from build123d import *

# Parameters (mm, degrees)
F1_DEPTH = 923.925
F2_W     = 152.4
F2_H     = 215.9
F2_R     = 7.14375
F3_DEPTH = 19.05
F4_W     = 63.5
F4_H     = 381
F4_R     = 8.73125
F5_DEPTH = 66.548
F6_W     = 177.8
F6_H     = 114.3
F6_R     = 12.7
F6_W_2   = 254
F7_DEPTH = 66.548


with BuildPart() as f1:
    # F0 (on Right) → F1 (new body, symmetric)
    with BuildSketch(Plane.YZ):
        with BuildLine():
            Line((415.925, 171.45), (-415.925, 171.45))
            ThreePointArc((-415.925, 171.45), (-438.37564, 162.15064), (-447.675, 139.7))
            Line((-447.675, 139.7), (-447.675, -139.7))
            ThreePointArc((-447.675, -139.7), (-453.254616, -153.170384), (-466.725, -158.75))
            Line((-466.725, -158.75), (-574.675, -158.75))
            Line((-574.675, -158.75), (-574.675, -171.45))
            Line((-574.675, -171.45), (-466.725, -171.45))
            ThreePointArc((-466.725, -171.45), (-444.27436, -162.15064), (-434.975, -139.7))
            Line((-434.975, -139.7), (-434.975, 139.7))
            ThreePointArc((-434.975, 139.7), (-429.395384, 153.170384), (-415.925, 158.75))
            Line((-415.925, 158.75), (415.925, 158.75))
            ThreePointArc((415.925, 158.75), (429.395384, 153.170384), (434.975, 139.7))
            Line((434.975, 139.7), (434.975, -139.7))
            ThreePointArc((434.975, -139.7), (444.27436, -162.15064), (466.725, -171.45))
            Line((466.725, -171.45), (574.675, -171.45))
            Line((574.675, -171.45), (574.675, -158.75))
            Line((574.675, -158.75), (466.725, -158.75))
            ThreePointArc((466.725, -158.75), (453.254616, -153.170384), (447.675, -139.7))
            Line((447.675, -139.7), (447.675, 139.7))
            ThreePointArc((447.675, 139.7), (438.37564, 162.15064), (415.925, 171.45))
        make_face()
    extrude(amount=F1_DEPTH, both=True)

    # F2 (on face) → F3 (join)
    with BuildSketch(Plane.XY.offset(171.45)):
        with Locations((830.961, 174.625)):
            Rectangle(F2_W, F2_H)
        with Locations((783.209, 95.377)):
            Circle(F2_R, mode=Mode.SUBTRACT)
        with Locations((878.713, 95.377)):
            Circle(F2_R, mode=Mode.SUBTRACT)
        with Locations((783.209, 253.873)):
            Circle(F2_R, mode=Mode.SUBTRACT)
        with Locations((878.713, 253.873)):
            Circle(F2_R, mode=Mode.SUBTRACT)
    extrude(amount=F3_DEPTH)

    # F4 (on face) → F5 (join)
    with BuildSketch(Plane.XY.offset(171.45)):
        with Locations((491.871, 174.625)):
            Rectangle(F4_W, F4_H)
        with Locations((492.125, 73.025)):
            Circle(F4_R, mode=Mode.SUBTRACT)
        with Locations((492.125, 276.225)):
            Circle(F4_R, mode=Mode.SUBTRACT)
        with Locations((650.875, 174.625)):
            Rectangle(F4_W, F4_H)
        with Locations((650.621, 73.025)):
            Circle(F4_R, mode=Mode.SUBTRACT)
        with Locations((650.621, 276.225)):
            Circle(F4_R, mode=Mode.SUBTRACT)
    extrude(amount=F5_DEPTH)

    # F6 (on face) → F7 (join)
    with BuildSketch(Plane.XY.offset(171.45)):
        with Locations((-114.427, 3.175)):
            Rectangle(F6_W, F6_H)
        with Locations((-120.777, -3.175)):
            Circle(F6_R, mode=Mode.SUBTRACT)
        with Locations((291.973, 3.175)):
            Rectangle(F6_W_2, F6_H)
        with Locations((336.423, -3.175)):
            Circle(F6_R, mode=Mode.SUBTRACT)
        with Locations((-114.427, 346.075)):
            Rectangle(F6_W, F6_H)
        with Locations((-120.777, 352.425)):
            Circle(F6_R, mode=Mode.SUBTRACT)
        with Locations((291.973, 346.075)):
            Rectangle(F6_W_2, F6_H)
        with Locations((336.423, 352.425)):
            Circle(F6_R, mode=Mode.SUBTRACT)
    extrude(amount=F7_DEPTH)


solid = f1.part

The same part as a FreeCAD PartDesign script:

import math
import FreeCAD as App
import Part
import Sketcher
Q = App.Units.Quantity

doc = App.newDocument("Part")
body = doc.addObject("PartDesign::Body", "Body")

# Sketch on YZ plane
sketch1 = doc.addObject("Sketcher::SketchObject", "Sketch")
body.addObject(sketch1)
sketch1.AttachmentSupport = (doc.YZ_Plane, [""])
sketch1.MapMode = "FlatFace"
sketch1.addGeometry(Part.LineSegment(App.Vector(415.925, 171.45, 0), App.Vector(-415.925, 171.45, 0)), False)
sketch1.addGeometry(Part.ArcOfCircle(Part.Circle(App.Vector(-415.924999, 139.699999, 0), App.Vector(0, 0, 1), 31.750001), math.radians(90.000002), math.radians(179.999998)), False)
sketch1.addGeometry(Part.LineSegment(App.Vector(-447.675, 139.7, 0), App.Vector(-447.675, -139.7, 0)), False)
sketch1.addGeometry(Part.ArcOfCircle(Part.Circle(App.Vector(-466.725001, -139.699999, 0), App.Vector(0, 0, 1), 19.050001), math.radians(-89.999998), math.radians(-0.000002)), False)
sketch1.addGeometry(Part.LineSegment(App.Vector(-466.725, -158.75, 0), App.Vector(-574.675, -158.75, 0)), False)
sketch1.addGeometry(Part.LineSegment(App.Vector(-574.675, -158.75, 0), App.Vector(-574.675, -171.45, 0)), False)
sketch1.addGeometry(Part.LineSegment(App.Vector(-574.675, -171.45, 0), App.Vector(-466.725, -171.45, 0)), False)
sketch1.addGeometry(Part.ArcOfCircle(Part.Circle(App.Vector(-466.725001, -139.699999, 0), App.Vector(0, 0, 1), 31.750001), math.radians(-89.999998), math.radians(-0.000002)), False)
sketch1.addGeometry(Part.LineSegment(App.Vector(-434.975, -139.7, 0), App.Vector(-434.975, 139.7, 0)), False)
sketch1.addGeometry(Part.ArcOfCircle(Part.Circle(App.Vector(-415.924999, 139.699999, 0), App.Vector(0, 0, 1), 19.050001), math.radians(90.000002), math.radians(179.999998)), False)
sketch1.addGeometry(Part.LineSegment(App.Vector(-415.925, 158.75, 0), App.Vector(415.925, 158.75, 0)), False)
sketch1.addGeometry(Part.ArcOfCircle(Part.Circle(App.Vector(415.924999, 139.699999, 0), App.Vector(0, 0, 1), 19.050001), math.radians(0.000002), math.radians(89.999998)), False)
sketch1.addGeometry(Part.LineSegment(App.Vector(434.975, 139.7, 0), App.Vector(434.975, -139.7, 0)), False)
sketch1.addGeometry(Part.ArcOfCircle(Part.Circle(App.Vector(466.725001, -139.699999, 0), App.Vector(0, 0, 1), 31.750001), math.radians(-179.999998), math.radians(-90.000002)), False)
sketch1.addGeometry(Part.LineSegment(App.Vector(466.725, -171.45, 0), App.Vector(574.675, -171.45, 0)), False)
sketch1.addGeometry(Part.LineSegment(App.Vector(574.675, -171.45, 0), App.Vector(574.675, -158.75, 0)), False)
sketch1.addGeometry(Part.LineSegment(App.Vector(574.675, -158.75, 0), App.Vector(466.725, -158.75, 0)), False)
sketch1.addGeometry(Part.ArcOfCircle(Part.Circle(App.Vector(466.725001, -139.699999, 0), App.Vector(0, 0, 1), 19.050001), math.radians(-179.999998), math.radians(-90.000002)), False)
sketch1.addGeometry(Part.LineSegment(App.Vector(447.675, -139.7, 0), App.Vector(447.675, 139.7, 0)), False)
sketch1.addGeometry(Part.ArcOfCircle(Part.Circle(App.Vector(415.924999, 139.699999, 0), App.Vector(0, 0, 1), 31.750001), math.radians(0.000002), math.radians(89.999998)), False)
sketch1.addConstraint(Sketcher.Constraint("Tangent", 0, 2, 1, 1))
sketch1.addConstraint(Sketcher.Constraint("Tangent", 1, 2, 2, 1))
sketch1.addConstraint(Sketcher.Constraint("Tangent", 2, 2, 3, 2))
sketch1.addConstraint(Sketcher.Constraint("Tangent", 3, 1, 4, 1))
sketch1.addConstraint(Sketcher.Constraint("Coincident", 4, 2, 5, 1))
sketch1.addConstraint(Sketcher.Constraint("Coincident", 5, 2, 6, 1))
sketch1.addConstraint(Sketcher.Constraint("Tangent", 6, 2, 7, 1))
sketch1.addConstraint(Sketcher.Constraint("Tangent", 7, 2, 8, 1))
sketch1.addConstraint(Sketcher.Constraint("Tangent", 8, 2, 9, 2))
sketch1.addConstraint(Sketcher.Constraint("Tangent", 9, 1, 10, 1))
sketch1.addConstraint(Sketcher.Constraint("Tangent", 10, 2, 11, 2))
sketch1.addConstraint(Sketcher.Constraint("Tangent", 11, 1, 12, 1))
sketch1.addConstraint(Sketcher.Constraint("Tangent", 12, 2, 13, 1))
sketch1.addConstraint(Sketcher.Constraint("Tangent", 13, 2, 14, 1))
sketch1.addConstraint(Sketcher.Constraint("Coincident", 14, 2, 15, 1))
sketch1.addConstraint(Sketcher.Constraint("Coincident", 15, 2, 16, 1))
sketch1.addConstraint(Sketcher.Constraint("Tangent", 16, 2, 17, 2))
sketch1.addConstraint(Sketcher.Constraint("Tangent", 17, 1, 18, 1))
sketch1.addConstraint(Sketcher.Constraint("Tangent", 18, 2, 19, 1))
sketch1.addConstraint(Sketcher.Constraint("Tangent", 19, 2, 0, 1))
sketch1.addConstraint(Sketcher.Constraint("Horizontal", 0))
sketch1.addConstraint(Sketcher.Constraint("Vertical", 2))
sketch1.addConstraint(Sketcher.Constraint("Horizontal", 4))
sketch1.addConstraint(Sketcher.Constraint("Vertical", 5))
sketch1.addConstraint(Sketcher.Constraint("Horizontal", 6))
sketch1.addConstraint(Sketcher.Constraint("Vertical", 8))
sketch1.addConstraint(Sketcher.Constraint("Horizontal", 10))
sketch1.addConstraint(Sketcher.Constraint("Vertical", 12))
sketch1.addConstraint(Sketcher.Constraint("Horizontal", 14))
sketch1.addConstraint(Sketcher.Constraint("Vertical", 15))
sketch1.addConstraint(Sketcher.Constraint("Horizontal", 16))
sketch1.addConstraint(Sketcher.Constraint("Vertical", 18))
sketch1.addConstraint(Sketcher.Constraint("Coincident", 7, 3, 3, 3))
sketch1.addConstraint(Sketcher.Constraint("Coincident", 9, 3, 1, 3))
sketch1.addConstraint(Sketcher.Constraint("Coincident", 17, 3, 13, 3))
sketch1.addConstraint(Sketcher.Constraint("Coincident", 19, 3, 11, 3))
sketch1.addConstraint(Sketcher.Constraint("Equal", 1, 7))
sketch1.addConstraint(Sketcher.Constraint("Equal", 9, 11))
sketch1.addConstraint(Sketcher.Constraint("Equal", 7, 13))
sketch1.addConstraint(Sketcher.Constraint("Symmetric", 7, 2, 11, 1, -1, 1))
sketch1.addConstraint(Sketcher.Constraint("Symmetric", 5, 2, 14, 2, -2))
sketch1.addConstraint(Sketcher.Constraint("DistanceY", 2, 2, 2, 1, Q("11 in")))
sketch1.addConstraint(Sketcher.Constraint("Radius", 1, Q("1.25 in")))
sketch1.addConstraint(Sketcher.Constraint("Radius", 3, Q("0.75 in")))
sketch1.addConstraint(Sketcher.Constraint("DistanceX", 4, 2, 2, 2, Q("5 in")))
sketch1.addConstraint(Sketcher.Constraint("DistanceX", 0, 2, 0, 1, Q("32.75 in")))
pad1 = doc.addObject("PartDesign::Pad", "Pad")
body.addObject(pad1)
pad1.Profile = sketch1
pad1.Length = Q("72.75 in")
pad1.Midplane = True

# Sketch on XY plane
sketch2 = doc.addObject("Sketcher::SketchObject", "Sketch001")
body.addObject(sketch2)
sketch2.AttachmentSupport = (doc.XY_Plane, [""])
sketch2.MapMode = "FlatFace"
sketch2.AttachmentOffset = App.Placement(App.Vector(0, 0, 6.75 * 25.4), App.Rotation())
sketch2.addGeometry(Part.LineSegment(App.Vector(754.761, 282.575, 0), App.Vector(754.761, 66.675, 0)), False)
sketch2.addGeometry(Part.LineSegment(App.Vector(754.761, 66.675, 0), App.Vector(907.161, 66.675, 0)), False)
sketch2.addGeometry(Part.LineSegment(App.Vector(907.161, 66.675, 0), App.Vector(907.161, 282.575, 0)), False)
sketch2.addGeometry(Part.LineSegment(App.Vector(907.161, 282.575, 0), App.Vector(754.761, 282.575, 0)), False)
sketch2.addGeometry(Part.Circle(App.Vector(783.209, 95.377, 0), App.Vector(0, 0, 1), 7.14375), False)
sketch2.addGeometry(Part.Circle(App.Vector(878.713, 95.377, 0), App.Vector(0, 0, 1), 7.14375), False)
sketch2.addGeometry(Part.Circle(App.Vector(783.209, 253.873, 0), App.Vector(0, 0, 1), 7.14375), False)
sketch2.addGeometry(Part.Circle(App.Vector(878.713, 253.873, 0), App.Vector(0, 0, 1), 7.14375), False)
sketch2.addConstraint(Sketcher.Constraint("Coincident", 0, 2, 1, 1))
sketch2.addConstraint(Sketcher.Constraint("Coincident", 1, 2, 2, 1))
sketch2.addConstraint(Sketcher.Constraint("Coincident", 2, 2, 3, 1))
sketch2.addConstraint(Sketcher.Constraint("Coincident", 3, 2, 0, 1))
sketch2.addConstraint(Sketcher.Constraint("Vertical", 0))
sketch2.addConstraint(Sketcher.Constraint("Horizontal", 1))
sketch2.addConstraint(Sketcher.Constraint("Vertical", 2))
sketch2.addConstraint(Sketcher.Constraint("Horizontal", 3))
sketch2.addConstraint(Sketcher.Constraint("Equal", 4, 5))
sketch2.addConstraint(Sketcher.Constraint("Equal", 5, 6))
sketch2.addConstraint(Sketcher.Constraint("Equal", 6, 7))
sketch2.addConstraint(Sketcher.Constraint("Horizontal", 4, 3, 5, 3))
sketch2.addConstraint(Sketcher.Constraint("Horizontal", 6, 3, 7, 3))
sketch2.addConstraint(Sketcher.Constraint("Vertical", 4, 3, 6, 3))
sketch2.addConstraint(Sketcher.Constraint("Vertical", 5, 3, 7, 3))
sketch2.addConstraint(Sketcher.Constraint("DistanceX", 1, 1, 1, 2, Q("6 in")))
sketch2.addConstraint(Sketcher.Constraint("Diameter", 4, Q("0.5625 in")))
sketch2.addConstraint(Sketcher.Constraint("DistanceY", 0, 2, 0, 1, Q("8.5 in")))
sketch2.addConstraint(Sketcher.Constraint("DistanceX", 4, 3, 5, 3, Q("3.76 in")))
sketch2.addConstraint(Sketcher.Constraint("DistanceY", 4, 3, 6, 3, Q("6.24 in")))
sketch2.addConstraint(Sketcher.Constraint("DistanceX", 0, 2, 4, 3, Q("1.12 in")))
sketch2.addConstraint(Sketcher.Constraint("DistanceY", 0, 2, 4, 3, Q("1.13 in")))
sketch2.addConstraint(Sketcher.Constraint("DistanceX", -1, 1, 4, 3, Q("30.835 in")))
sketch2.addConstraint(Sketcher.Constraint("DistanceY", -1, 1, 4, 3, Q("3.755 in")))
pad2 = doc.addObject("PartDesign::Pad", "Pad001")
body.addObject(pad2)
pad2.Profile = sketch2
pad2.Length = Q("0.75 in")

# Sketch on XY plane
sketch3 = doc.addObject("Sketcher::SketchObject", "Sketch002")
body.addObject(sketch3)
sketch3.AttachmentSupport = (doc.XY_Plane, [""])
sketch3.MapMode = "FlatFace"
sketch3.AttachmentOffset = App.Placement(App.Vector(0, 0, 6.75 * 25.4), App.Rotation())
sketch3.addGeometry(Part.LineSegment(App.Vector(460.121, 365.125, 0), App.Vector(460.121, -15.875, 0)), False)
sketch3.addGeometry(Part.LineSegment(App.Vector(460.121, -15.875, 0), App.Vector(523.621, -15.875, 0)), False)
sketch3.addGeometry(Part.LineSegment(App.Vector(523.621, -15.875, 0), App.Vector(523.621, 365.125, 0)), False)
sketch3.addGeometry(Part.LineSegment(App.Vector(523.621, 365.125, 0), App.Vector(460.121, 365.125, 0)), False)
sketch3.addGeometry(Part.Circle(App.Vector(492.125, 73.025, 0), App.Vector(0, 0, 1), 8.73125), False)
sketch3.addGeometry(Part.Circle(App.Vector(492.125, 276.225, 0), App.Vector(0, 0, 1), 8.73125), False)
sketch3.addGeometry(Part.LineSegment(App.Vector(619.125, 365.125, 0), App.Vector(619.125, -15.875, 0)), False)
sketch3.addGeometry(Part.LineSegment(App.Vector(619.125, -15.875, 0), App.Vector(682.625, -15.875, 0)), False)
sketch3.addGeometry(Part.LineSegment(App.Vector(682.625, -15.875, 0), App.Vector(682.625, 365.125, 0)), False)
sketch3.addGeometry(Part.LineSegment(App.Vector(682.625, 365.125, 0), App.Vector(619.125, 365.125, 0)), False)
sketch3.addGeometry(Part.Circle(App.Vector(650.621, 73.025, 0), App.Vector(0, 0, 1), 8.73125), False)
sketch3.addGeometry(Part.Circle(App.Vector(650.621, 276.225, 0), App.Vector(0, 0, 1), 8.73125), False)
sketch3.addConstraint(Sketcher.Constraint("Coincident", 0, 2, 1, 1))
sketch3.addConstraint(Sketcher.Constraint("Coincident", 1, 2, 2, 1))
sketch3.addConstraint(Sketcher.Constraint("Coincident", 2, 2, 3, 1))
sketch3.addConstraint(Sketcher.Constraint("Coincident", 3, 2, 0, 1))
sketch3.addConstraint(Sketcher.Constraint("Coincident", 6, 2, 7, 1))
sketch3.addConstraint(Sketcher.Constraint("Coincident", 7, 2, 8, 1))
sketch3.addConstraint(Sketcher.Constraint("Coincident", 8, 2, 9, 1))
sketch3.addConstraint(Sketcher.Constraint("Coincident", 9, 2, 6, 1))
sketch3.addConstraint(Sketcher.Constraint("Vertical", 0))
sketch3.addConstraint(Sketcher.Constraint("Horizontal", 1))
sketch3.addConstraint(Sketcher.Constraint("Vertical", 2))
sketch3.addConstraint(Sketcher.Constraint("Horizontal", 3))
sketch3.addConstraint(Sketcher.Constraint("Vertical", 6))
sketch3.addConstraint(Sketcher.Constraint("Horizontal", 7))
sketch3.addConstraint(Sketcher.Constraint("Vertical", 8))
sketch3.addConstraint(Sketcher.Constraint("Horizontal", 9))
sketch3.addConstraint(Sketcher.Constraint("Equal", 4, 5))
sketch3.addConstraint(Sketcher.Constraint("Equal", 5, 10))
sketch3.addConstraint(Sketcher.Constraint("Equal", 10, 11))
sketch3.addConstraint(Sketcher.Constraint("Horizontal", 4, 3, 10, 3))
sketch3.addConstraint(Sketcher.Constraint("Horizontal", 5, 3, 11, 3))
sketch3.addConstraint(Sketcher.Constraint("Horizontal", 1, 2, 6, 2))
sketch3.addConstraint(Sketcher.Constraint("Horizontal", 3, 2, 8, 2))
sketch3.addConstraint(Sketcher.Constraint("Vertical", 4, 3, 5, 3))
sketch3.addConstraint(Sketcher.Constraint("Vertical", 10, 3, 11, 3))
sketch3.addConstraint(Sketcher.Constraint("Equal", 3, 7))
sketch3.addConstraint(Sketcher.Constraint("DistanceY", 0, 2, 0, 1, Q("15 in")))
sketch3.addConstraint(Sketcher.Constraint("Diameter", 4, Q("0.6875 in")))
sketch3.addConstraint(Sketcher.Constraint("DistanceX", 1, 1, 1, 2, Q("2.5 in")))
sketch3.addConstraint(Sketcher.Constraint("DistanceY", 4, 3, 5, 3, Q("8 in")))
sketch3.addConstraint(Sketcher.Constraint("DistanceX", 1, 2, 10, 3, Q("5 in")))
sketch3.addConstraint(Sketcher.Constraint("DistanceX", 4, 3, 6, 2, Q("5 in")))
sketch3.addConstraint(Sketcher.Constraint("DistanceY", 0, 2, 4, 3, Q("3.5 in")))
sketch3.addConstraint(Sketcher.Constraint("DistanceX", 4, 3, 10, 3, Q("6.24 in")))
sketch3.addConstraint(Sketcher.Constraint("DistanceX", -1, 1, 4, 3, Q("19.375 in")))
sketch3.addConstraint(Sketcher.Constraint("DistanceY", -1, 1, 4, 3, Q("2.875 in")))
pad3 = doc.addObject("PartDesign::Pad", "Pad002")
body.addObject(pad3)
pad3.Profile = sketch3
pad3.Length = Q("2.62 in")

# Sketch on XY plane
sketch4 = doc.addObject("Sketcher::SketchObject", "Sketch003")
body.addObject(sketch4)
sketch4.AttachmentSupport = (doc.XY_Plane, [""])
sketch4.MapMode = "FlatFace"
sketch4.AttachmentOffset = App.Placement(App.Vector(0, 0, 6.75 * 25.4), App.Rotation())
sketch4.addGeometry(Part.LineSegment(App.Vector(-203.327, 60.325, 0), App.Vector(-203.327, -53.975, 0)), False)
sketch4.addGeometry(Part.LineSegment(App.Vector(-203.327, -53.975, 0), App.Vector(-25.527, -53.975, 0)), False)
sketch4.addGeometry(Part.LineSegment(App.Vector(-25.527, -53.975, 0), App.Vector(-25.527, 60.325, 0)), False)
sketch4.addGeometry(Part.LineSegment(App.Vector(-25.527, 60.325, 0), App.Vector(-203.327, 60.325, 0)), False)
sketch4.addGeometry(Part.Circle(App.Vector(-120.777, -3.175, 0), App.Vector(0, 0, 1), 12.7), False)
sketch4.addGeometry(Part.LineSegment(App.Vector(164.973, 60.325, 0), App.Vector(164.973, -53.975, 0)), False)
sketch4.addGeometry(Part.LineSegment(App.Vector(164.973, -53.975, 0), App.Vector(418.973, -53.975, 0)), False)
sketch4.addGeometry(Part.LineSegment(App.Vector(418.973, -53.975, 0), App.Vector(418.973, 60.325, 0)), False)
sketch4.addGeometry(Part.LineSegment(App.Vector(418.973, 60.325, 0), App.Vector(164.973, 60.325, 0)), False)
sketch4.addGeometry(Part.Circle(App.Vector(336.423, -3.175, 0), App.Vector(0, 0, 1), 12.7), False)
sketch4.addGeometry(Part.LineSegment(App.Vector(-203.327, 403.225, 0), App.Vector(-203.327, 288.925, 0)), False)
sketch4.addGeometry(Part.LineSegment(App.Vector(-203.327, 288.925, 0), App.Vector(-25.527, 288.925, 0)), False)
sketch4.addGeometry(Part.LineSegment(App.Vector(-25.527, 288.925, 0), App.Vector(-25.527, 403.225, 0)), False)
sketch4.addGeometry(Part.LineSegment(App.Vector(-25.527, 403.225, 0), App.Vector(-203.327, 403.225, 0)), False)
sketch4.addGeometry(Part.Circle(App.Vector(-120.777, 352.425, 0), App.Vector(0, 0, 1), 12.7), False)
sketch4.addGeometry(Part.LineSegment(App.Vector(164.973, 403.225, 0), App.Vector(164.973, 288.925, 0)), False)
sketch4.addGeometry(Part.LineSegment(App.Vector(164.973, 288.925, 0), App.Vector(418.973, 288.925, 0)), False)
sketch4.addGeometry(Part.LineSegment(App.Vector(418.973, 288.925, 0), App.Vector(418.973, 403.225, 0)), False)
sketch4.addGeometry(Part.LineSegment(App.Vector(418.973, 403.225, 0), App.Vector(164.973, 403.225, 0)), False)
sketch4.addGeometry(Part.Circle(App.Vector(336.423, 352.425, 0), App.Vector(0, 0, 1), 12.7), False)
sketch4.addConstraint(Sketcher.Constraint("Coincident", 0, 2, 1, 1))
sketch4.addConstraint(Sketcher.Constraint("Coincident", 1, 2, 2, 1))
sketch4.addConstraint(Sketcher.Constraint("Coincident", 2, 2, 3, 1))
sketch4.addConstraint(Sketcher.Constraint("Coincident", 3, 2, 0, 1))
sketch4.addConstraint(Sketcher.Constraint("Coincident", 5, 2, 6, 1))
sketch4.addConstraint(Sketcher.Constraint("Coincident", 6, 2, 7, 1))
sketch4.addConstraint(Sketcher.Constraint("Coincident", 7, 2, 8, 1))
sketch4.addConstraint(Sketcher.Constraint("Coincident", 8, 2, 5, 1))
sketch4.addConstraint(Sketcher.Constraint("Coincident", 10, 2, 11, 1))
sketch4.addConstraint(Sketcher.Constraint("Coincident", 11, 2, 12, 1))
sketch4.addConstraint(Sketcher.Constraint("Coincident", 12, 2, 13, 1))
sketch4.addConstraint(Sketcher.Constraint("Coincident", 13, 2, 10, 1))
sketch4.addConstraint(Sketcher.Constraint("Coincident", 15, 2, 16, 1))
sketch4.addConstraint(Sketcher.Constraint("Coincident", 16, 2, 17, 1))
sketch4.addConstraint(Sketcher.Constraint("Coincident", 17, 2, 18, 1))
sketch4.addConstraint(Sketcher.Constraint("Coincident", 18, 2, 15, 1))
sketch4.addConstraint(Sketcher.Constraint("Vertical", 0))
sketch4.addConstraint(Sketcher.Constraint("Horizontal", 1))
sketch4.addConstraint(Sketcher.Constraint("Vertical", 2))
sketch4.addConstraint(Sketcher.Constraint("Horizontal", 3))
sketch4.addConstraint(Sketcher.Constraint("Vertical", 5))
sketch4.addConstraint(Sketcher.Constraint("Horizontal", 6))
sketch4.addConstraint(Sketcher.Constraint("Vertical", 7))
sketch4.addConstraint(Sketcher.Constraint("Horizontal", 8))
sketch4.addConstraint(Sketcher.Constraint("Vertical", 10))
sketch4.addConstraint(Sketcher.Constraint("Horizontal", 11))
sketch4.addConstraint(Sketcher.Constraint("Vertical", 12))
sketch4.addConstraint(Sketcher.Constraint("Horizontal", 13))
sketch4.addConstraint(Sketcher.Constraint("Vertical", 15))
sketch4.addConstraint(Sketcher.Constraint("Horizontal", 16))
sketch4.addConstraint(Sketcher.Constraint("Vertical", 17))
sketch4.addConstraint(Sketcher.Constraint("Horizontal", 18))
sketch4.addConstraint(Sketcher.Constraint("Equal", 4, 9))
sketch4.addConstraint(Sketcher.Constraint("Equal", 9, 14))
sketch4.addConstraint(Sketcher.Constraint("Equal", 14, 19))
sketch4.addConstraint(Sketcher.Constraint("Horizontal", 4, 3, 9, 3))
sketch4.addConstraint(Sketcher.Constraint("Horizontal", 14, 3, 19, 3))
sketch4.addConstraint(Sketcher.Constraint("Horizontal", 1, 2, 5, 2))
sketch4.addConstraint(Sketcher.Constraint("Horizontal", 3, 2, 7, 2))
sketch4.addConstraint(Sketcher.Constraint("Horizontal", 11, 2, 15, 2))
sketch4.addConstraint(Sketcher.Constraint("Horizontal", 13, 2, 17, 2))
sketch4.addConstraint(Sketcher.Constraint("Vertical", 4, 3, 14, 3))
sketch4.addConstraint(Sketcher.Constraint("Vertical", 9, 3, 19, 3))
sketch4.addConstraint(Sketcher.Constraint("Vertical", 3, 2, 10, 2))
sketch4.addConstraint(Sketcher.Constraint("Vertical", 2, 2, 11, 2))
sketch4.addConstraint(Sketcher.Constraint("Vertical", 8, 2, 15, 2))
sketch4.addConstraint(Sketcher.Constraint("Vertical", 7, 2, 16, 2))
sketch4.addConstraint(Sketcher.Constraint("Equal", 7, 10))
sketch4.addConstraint(Sketcher.Constraint("Diameter", 4, Q("1 in")))
sketch4.addConstraint(Sketcher.Constraint("DistanceX", 1, 1, 1, 2, Q("7 in")))
sketch4.addConstraint(Sketcher.Constraint("DistanceX", 6, 1, 6, 2, Q("10 in")))
sketch4.addConstraint(Sketcher.Constraint("DistanceY", 0, 2, 0, 1, Q("4.5 in")))
sketch4.addConstraint(Sketcher.Constraint("DistanceX", 4, 3, 9, 3, Q("18 in")))
sketch4.addConstraint(Sketcher.Constraint("DistanceY", 4, 3, 14, 3, Q("14 in")))
sketch4.addConstraint(Sketcher.Constraint("DistanceY", 0, 2, 4, 3, Q("2 in")))
sketch4.addConstraint(Sketcher.Constraint("DistanceY", 3, 2, 10, 2, Q("9 in")))
sketch4.addConstraint(Sketcher.Constraint("DistanceX", 1, 2, 5, 2, Q("7.5 in")))
sketch4.addConstraint(Sketcher.Constraint("DistanceX", 0, 2, 4, 3, Q("3.25 in")))
sketch4.addConstraint(Sketcher.Constraint("DistanceX", 4, 3, -1, 1, Q("4.755 in")))
sketch4.addConstraint(Sketcher.Constraint("DistanceY", 4, 3, -1, 1, Q("0.125 in")))
pad4 = doc.addObject("PartDesign::Pad", "Pad003")
body.addObject(pad4)
pad4.Profile = sketch4
pad4.Length = Q("2.62 in")

doc.recompute()
